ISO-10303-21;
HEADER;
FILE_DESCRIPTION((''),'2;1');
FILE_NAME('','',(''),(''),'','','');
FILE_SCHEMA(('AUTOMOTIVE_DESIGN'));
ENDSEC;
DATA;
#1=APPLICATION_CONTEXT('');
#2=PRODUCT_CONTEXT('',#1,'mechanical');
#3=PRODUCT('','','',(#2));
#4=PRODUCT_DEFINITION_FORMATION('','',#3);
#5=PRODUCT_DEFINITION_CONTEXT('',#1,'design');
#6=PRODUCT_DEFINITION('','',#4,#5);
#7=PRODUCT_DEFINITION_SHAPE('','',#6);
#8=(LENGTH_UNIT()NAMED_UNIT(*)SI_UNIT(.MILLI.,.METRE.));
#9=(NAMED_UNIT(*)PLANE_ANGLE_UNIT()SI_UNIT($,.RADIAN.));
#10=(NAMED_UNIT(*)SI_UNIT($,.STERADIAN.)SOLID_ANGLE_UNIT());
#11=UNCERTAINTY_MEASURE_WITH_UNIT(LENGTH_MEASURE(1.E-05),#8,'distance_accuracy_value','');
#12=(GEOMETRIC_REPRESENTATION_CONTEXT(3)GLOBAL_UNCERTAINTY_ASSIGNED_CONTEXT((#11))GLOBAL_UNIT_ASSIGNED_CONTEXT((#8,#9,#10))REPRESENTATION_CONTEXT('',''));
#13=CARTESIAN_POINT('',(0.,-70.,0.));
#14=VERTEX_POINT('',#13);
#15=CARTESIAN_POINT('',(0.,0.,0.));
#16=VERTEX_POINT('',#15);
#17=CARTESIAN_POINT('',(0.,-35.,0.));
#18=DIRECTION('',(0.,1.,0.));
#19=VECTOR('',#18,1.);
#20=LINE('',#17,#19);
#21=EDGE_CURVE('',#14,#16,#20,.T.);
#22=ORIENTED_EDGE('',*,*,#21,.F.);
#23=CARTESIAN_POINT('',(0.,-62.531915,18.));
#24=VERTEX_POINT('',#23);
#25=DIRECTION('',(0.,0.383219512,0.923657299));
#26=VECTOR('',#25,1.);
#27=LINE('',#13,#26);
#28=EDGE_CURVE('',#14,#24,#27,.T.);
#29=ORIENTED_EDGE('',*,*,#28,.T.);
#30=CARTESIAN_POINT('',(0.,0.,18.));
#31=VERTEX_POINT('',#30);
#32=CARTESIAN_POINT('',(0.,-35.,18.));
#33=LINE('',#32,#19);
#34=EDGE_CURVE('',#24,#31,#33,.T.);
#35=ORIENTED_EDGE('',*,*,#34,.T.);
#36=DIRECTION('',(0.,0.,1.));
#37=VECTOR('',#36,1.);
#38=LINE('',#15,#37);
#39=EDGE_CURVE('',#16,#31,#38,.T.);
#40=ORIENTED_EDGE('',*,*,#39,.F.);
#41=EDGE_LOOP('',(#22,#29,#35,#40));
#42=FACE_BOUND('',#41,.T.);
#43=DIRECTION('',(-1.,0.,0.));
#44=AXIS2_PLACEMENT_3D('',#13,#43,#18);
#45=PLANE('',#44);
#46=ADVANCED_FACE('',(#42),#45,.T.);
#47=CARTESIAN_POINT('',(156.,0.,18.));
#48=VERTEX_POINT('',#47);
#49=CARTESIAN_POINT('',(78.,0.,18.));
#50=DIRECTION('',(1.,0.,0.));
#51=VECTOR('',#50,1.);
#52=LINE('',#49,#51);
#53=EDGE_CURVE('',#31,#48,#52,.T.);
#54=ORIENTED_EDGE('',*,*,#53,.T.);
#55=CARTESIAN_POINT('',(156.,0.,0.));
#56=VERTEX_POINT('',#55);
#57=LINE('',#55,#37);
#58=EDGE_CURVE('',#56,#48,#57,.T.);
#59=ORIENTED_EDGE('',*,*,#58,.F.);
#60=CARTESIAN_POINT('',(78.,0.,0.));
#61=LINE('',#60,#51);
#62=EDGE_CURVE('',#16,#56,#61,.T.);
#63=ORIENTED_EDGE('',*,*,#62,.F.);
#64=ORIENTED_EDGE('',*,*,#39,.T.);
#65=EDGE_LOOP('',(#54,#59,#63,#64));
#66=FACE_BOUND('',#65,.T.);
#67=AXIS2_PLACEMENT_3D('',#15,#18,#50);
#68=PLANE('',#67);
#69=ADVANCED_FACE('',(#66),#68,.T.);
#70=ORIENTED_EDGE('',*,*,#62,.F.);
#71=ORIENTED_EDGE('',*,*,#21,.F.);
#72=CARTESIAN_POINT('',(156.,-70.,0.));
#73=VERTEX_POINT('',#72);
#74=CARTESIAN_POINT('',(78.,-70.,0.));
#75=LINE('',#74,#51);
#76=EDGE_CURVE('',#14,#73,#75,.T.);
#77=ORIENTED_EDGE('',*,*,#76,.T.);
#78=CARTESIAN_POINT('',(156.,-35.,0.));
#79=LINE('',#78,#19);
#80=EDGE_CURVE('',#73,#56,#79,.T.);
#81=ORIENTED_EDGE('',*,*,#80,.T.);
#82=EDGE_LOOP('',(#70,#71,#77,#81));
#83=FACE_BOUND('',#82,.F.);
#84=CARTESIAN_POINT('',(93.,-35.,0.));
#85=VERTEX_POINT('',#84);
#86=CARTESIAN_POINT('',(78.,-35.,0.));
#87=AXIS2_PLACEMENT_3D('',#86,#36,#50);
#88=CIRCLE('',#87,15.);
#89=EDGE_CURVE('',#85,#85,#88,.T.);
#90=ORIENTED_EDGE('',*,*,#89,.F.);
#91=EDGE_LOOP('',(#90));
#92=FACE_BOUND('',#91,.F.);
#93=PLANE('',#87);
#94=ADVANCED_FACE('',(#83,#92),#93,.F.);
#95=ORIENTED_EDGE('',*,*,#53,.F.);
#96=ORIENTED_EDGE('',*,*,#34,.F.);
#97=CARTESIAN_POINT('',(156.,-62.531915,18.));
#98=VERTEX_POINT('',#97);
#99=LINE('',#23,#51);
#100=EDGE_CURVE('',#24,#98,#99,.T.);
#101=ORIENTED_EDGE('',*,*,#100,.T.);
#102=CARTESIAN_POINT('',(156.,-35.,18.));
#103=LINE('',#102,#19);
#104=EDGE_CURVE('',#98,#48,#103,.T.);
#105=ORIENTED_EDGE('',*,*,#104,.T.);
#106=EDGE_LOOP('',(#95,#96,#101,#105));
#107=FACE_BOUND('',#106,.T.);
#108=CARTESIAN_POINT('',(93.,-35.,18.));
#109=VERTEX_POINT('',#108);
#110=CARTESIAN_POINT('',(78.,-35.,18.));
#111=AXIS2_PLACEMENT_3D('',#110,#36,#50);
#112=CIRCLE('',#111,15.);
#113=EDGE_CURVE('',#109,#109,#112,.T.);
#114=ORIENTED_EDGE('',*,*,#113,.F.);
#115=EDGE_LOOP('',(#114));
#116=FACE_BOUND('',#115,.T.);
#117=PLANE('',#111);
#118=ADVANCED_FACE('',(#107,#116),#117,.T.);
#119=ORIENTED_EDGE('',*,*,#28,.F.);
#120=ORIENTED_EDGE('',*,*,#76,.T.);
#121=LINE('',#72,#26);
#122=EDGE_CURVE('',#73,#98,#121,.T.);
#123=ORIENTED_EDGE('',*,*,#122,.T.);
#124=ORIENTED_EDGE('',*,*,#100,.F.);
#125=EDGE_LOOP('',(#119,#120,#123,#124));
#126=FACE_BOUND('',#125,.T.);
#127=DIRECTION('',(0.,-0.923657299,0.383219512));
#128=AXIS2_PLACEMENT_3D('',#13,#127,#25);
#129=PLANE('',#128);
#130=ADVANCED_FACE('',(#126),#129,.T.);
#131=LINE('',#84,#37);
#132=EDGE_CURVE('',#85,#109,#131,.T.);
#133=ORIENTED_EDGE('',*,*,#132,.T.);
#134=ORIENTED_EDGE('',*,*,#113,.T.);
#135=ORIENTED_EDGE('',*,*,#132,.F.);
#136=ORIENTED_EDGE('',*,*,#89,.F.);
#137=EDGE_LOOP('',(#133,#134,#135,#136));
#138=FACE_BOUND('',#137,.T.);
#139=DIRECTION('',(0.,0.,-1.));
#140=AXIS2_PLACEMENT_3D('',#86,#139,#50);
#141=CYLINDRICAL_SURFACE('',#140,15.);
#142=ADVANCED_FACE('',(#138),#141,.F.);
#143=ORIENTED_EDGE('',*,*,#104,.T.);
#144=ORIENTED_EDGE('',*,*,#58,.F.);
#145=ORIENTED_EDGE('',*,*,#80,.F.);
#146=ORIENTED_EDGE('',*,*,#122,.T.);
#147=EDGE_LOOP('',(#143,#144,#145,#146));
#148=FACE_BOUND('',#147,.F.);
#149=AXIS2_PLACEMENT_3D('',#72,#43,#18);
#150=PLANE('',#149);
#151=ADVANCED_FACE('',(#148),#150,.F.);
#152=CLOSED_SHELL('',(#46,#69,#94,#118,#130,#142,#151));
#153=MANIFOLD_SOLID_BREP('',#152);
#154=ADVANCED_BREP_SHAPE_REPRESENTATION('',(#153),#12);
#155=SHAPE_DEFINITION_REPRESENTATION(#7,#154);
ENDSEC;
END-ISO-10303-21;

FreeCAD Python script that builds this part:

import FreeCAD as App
import Part
import Sketcher

V = App.Vector
Q = App.Units.Quantity


def add_polygon(sketch, points):
    """Adds a closed chain of lines whose ends are joined by coincident constraints."""
    first, n = sketch.GeometryCount, len(points)
    for a, b in zip(points, points[1:] + points[:1]):
        sketch.addGeometry(Part.LineSegment(App.Vector(*a, 0), App.Vector(*b, 0)), False)
    for i in range(n):
        sketch.addConstraint(Sketcher.Constraint("Coincident", first + i, 2, first + (i + 1) % n, 1))

doc = App.newDocument("Part")
body = doc.addObject("PartDesign::Body", "Body")

sketch1 = doc.addObject("Sketcher::SketchObject", "Sketch")
body.addObject(sketch1)
sketch1.AttachmentSupport = (doc.XY_Plane, [""])
sketch1.MapMode = "FlatFace"
add_polygon(sketch1, [(0, 0), (0, -70), (156, -70), (156, 0)])
sketch1.addGeometry(Part.Circle(V(78, -35, 0), V(0, 0, 1), 15), False)
sketch1.addConstraint([
    Sketcher.Constraint("Vertical", 0),
    Sketcher.Constraint("Horizontal", 1),
    Sketcher.Constraint("Vertical", 2),
    Sketcher.Constraint("Horizontal", 3),
    Sketcher.Constraint("Coincident", 3, 2, -1, 1),
    Sketcher.Constraint("Diameter", 4, Q("30 mm")),
    Sketcher.Constraint("DistanceX", 1, 1, 1, 2, Q("156 mm")),
    Sketcher.Constraint("DistanceY", 0, 2, 0, 1, Q("70 mm")),
    Sketcher.Constraint("DistanceX", -1, 1, 4, 3, Q("78 mm")),
    Sketcher.Constraint("DistanceY", 4, 3, -1, 1, Q("35 mm")),
])
pad1 = doc.addObject("PartDesign::Pad", "Pad")
body.addObject(pad1)
pad1.Profile = sketch1
pad1.Length = 18

sketch2 = doc.addObject("Sketcher::SketchObject", "Sketch001")
body.addObject(sketch2)
sketch2.AttachmentSupport = (doc.YZ_Plane, [""])
sketch2.MapMode = "FlatFace"
add_polygon(sketch2, [(-70, 18), (-70, 0), (-63, 18)])
sketch2.addConstraint([
    Sketcher.Constraint("Vertical", 0),
    Sketcher.Constraint("Horizontal", 2),
    Sketcher.Constraint("PointOnObject", 0, 2, -1),
    Sketcher.Constraint("DistanceY", 0, 2, 0, 1, Q("18 mm")),
    Sketcher.Constraint("DistanceX", 0, 2, -1, 1, Q("70 mm")),
    Sketcher.Constraint("DistanceX", 2, 2, 2, 1, Q("7.468085 mm")),
])
pocket1 = doc.addObject("PartDesign::Pocket", "Pocket")
body.addObject(pocket1)
pocket1.Profile = sketch2
pocket1.Length = 156
pocket1.Reversed = True

doc.recompute()
